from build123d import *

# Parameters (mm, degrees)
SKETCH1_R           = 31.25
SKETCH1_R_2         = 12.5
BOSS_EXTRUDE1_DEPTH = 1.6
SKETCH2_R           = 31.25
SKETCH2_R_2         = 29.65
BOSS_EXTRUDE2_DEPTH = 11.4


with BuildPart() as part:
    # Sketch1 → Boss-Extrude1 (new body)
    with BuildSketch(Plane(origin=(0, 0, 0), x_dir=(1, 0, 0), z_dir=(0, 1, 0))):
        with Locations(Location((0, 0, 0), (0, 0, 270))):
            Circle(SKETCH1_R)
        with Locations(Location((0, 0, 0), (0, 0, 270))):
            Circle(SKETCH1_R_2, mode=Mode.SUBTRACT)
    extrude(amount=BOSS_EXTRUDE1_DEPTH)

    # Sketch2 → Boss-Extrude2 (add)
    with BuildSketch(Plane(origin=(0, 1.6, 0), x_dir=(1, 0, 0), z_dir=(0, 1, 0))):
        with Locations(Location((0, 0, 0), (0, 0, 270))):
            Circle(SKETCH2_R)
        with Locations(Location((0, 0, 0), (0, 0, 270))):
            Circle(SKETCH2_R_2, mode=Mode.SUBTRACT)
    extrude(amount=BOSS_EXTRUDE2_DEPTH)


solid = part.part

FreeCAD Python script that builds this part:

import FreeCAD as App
import Part
import Sketcher
Q = App.Units.Quantity

doc = App.newDocument("Part")
params = doc.addObject("Spreadsheet::Sheet", "Params")
for row, (alias, value) in enumerate([
    ("sketch1_diameter", "25 mm"),
    ("sketch1_diameter2", "62.5 mm"),
    ("pad1_length", "1.6 mm"),
    ("sketch2_diameter", "62.5 mm"),
    ("sketch2_diameter2", "59.3 mm"),
    ("pad2_length", "11.4 mm"),
], start=1):
    params.set(f"A{row}", alias)
    params.set(f"B{row}", "=" + value)
    params.setAlias(f"B{row}", alias)

body = doc.addObject("PartDesign::Body", "Body")

sketch1 = doc.addObject("Sketcher::SketchObject", "Sketch")
body.addObject(sketch1)
sketch1.AttachmentSupport = (doc.XZ_Plane, [""])
sketch1.MapMode = "FlatFace"
sketch1.addGeometry(Part.Circle(App.Vector(0, 0, 0), App.Vector(0, 0, 1), 31), False)
sketch1.addGeometry(Part.Circle(App.Vector(0, 0, 0), App.Vector(0, 0, 1), 12), False)
sketch1.addConstraint(Sketcher.Constraint("Coincident", 0, 3, -1, 1))
sketch1.addConstraint(Sketcher.Constraint("Coincident", 1, 3, -1, 1))
sketch1.addConstraint(Sketcher.Constraint("Diameter", 1, Q("25 mm")))
sketch1.addConstraint(Sketcher.Constraint("Diameter", 0, Q("62.5 mm")))
sketch1.setExpression("Constraints[2]", "Params.sketch1_diameter")
sketch1.setExpression("Constraints[3]", "Params.sketch1_diameter2")
pad1 = doc.addObject("PartDesign::Pad", "Pad")
body.addObject(pad1)
pad1.Profile = sketch1
pad1.setExpression("Length", "Params.pad1_length")
pad1.Reversed = True

sketch2 = doc.addObject("Sketcher::SketchObject", "Sketch001")
body.addObject(sketch2)
sketch2.AttachmentSupport = (doc.XZ_Plane, [""])
sketch2.MapMode = "FlatFace"
sketch2.AttachmentOffset = App.Placement(App.Vector(0, 0, -1.6), App.Rotation())
sketch2.addGeometry(Part.Circle(App.Vector(0, 0, 0), App.Vector(0, 0, 1), 31), False)
sketch2.addGeometry(Part.Circle(App.Vector(0, 0, 0), App.Vector(0, 0, 1), 30), False)
sketch2.addConstraint(Sketcher.Constraint("Coincident", 0, 3, -1, 1))
sketch2.addConstraint(Sketcher.Constraint("Coincident", 1, 3, -1, 1))
sketch2.addConstraint(Sketcher.Constraint("Diameter", 0, Q("62.5 mm")))
sketch2.addConstraint(Sketcher.Constraint("Diameter", 1, Q("59.3 mm")))
sketch2.setExpression("Constraints[2]", "Params.sketch2_diameter")
sketch2.setExpression("Constraints[3]", "Params.sketch2_diameter2")
pad2 = doc.addObject("PartDesign::Pad", "Pad001")
body.addObject(pad2)
pad2.Profile = sketch2
pad2.setExpression("Length", "Params.pad2_length")
pad2.Reversed = True

doc.recompute()
